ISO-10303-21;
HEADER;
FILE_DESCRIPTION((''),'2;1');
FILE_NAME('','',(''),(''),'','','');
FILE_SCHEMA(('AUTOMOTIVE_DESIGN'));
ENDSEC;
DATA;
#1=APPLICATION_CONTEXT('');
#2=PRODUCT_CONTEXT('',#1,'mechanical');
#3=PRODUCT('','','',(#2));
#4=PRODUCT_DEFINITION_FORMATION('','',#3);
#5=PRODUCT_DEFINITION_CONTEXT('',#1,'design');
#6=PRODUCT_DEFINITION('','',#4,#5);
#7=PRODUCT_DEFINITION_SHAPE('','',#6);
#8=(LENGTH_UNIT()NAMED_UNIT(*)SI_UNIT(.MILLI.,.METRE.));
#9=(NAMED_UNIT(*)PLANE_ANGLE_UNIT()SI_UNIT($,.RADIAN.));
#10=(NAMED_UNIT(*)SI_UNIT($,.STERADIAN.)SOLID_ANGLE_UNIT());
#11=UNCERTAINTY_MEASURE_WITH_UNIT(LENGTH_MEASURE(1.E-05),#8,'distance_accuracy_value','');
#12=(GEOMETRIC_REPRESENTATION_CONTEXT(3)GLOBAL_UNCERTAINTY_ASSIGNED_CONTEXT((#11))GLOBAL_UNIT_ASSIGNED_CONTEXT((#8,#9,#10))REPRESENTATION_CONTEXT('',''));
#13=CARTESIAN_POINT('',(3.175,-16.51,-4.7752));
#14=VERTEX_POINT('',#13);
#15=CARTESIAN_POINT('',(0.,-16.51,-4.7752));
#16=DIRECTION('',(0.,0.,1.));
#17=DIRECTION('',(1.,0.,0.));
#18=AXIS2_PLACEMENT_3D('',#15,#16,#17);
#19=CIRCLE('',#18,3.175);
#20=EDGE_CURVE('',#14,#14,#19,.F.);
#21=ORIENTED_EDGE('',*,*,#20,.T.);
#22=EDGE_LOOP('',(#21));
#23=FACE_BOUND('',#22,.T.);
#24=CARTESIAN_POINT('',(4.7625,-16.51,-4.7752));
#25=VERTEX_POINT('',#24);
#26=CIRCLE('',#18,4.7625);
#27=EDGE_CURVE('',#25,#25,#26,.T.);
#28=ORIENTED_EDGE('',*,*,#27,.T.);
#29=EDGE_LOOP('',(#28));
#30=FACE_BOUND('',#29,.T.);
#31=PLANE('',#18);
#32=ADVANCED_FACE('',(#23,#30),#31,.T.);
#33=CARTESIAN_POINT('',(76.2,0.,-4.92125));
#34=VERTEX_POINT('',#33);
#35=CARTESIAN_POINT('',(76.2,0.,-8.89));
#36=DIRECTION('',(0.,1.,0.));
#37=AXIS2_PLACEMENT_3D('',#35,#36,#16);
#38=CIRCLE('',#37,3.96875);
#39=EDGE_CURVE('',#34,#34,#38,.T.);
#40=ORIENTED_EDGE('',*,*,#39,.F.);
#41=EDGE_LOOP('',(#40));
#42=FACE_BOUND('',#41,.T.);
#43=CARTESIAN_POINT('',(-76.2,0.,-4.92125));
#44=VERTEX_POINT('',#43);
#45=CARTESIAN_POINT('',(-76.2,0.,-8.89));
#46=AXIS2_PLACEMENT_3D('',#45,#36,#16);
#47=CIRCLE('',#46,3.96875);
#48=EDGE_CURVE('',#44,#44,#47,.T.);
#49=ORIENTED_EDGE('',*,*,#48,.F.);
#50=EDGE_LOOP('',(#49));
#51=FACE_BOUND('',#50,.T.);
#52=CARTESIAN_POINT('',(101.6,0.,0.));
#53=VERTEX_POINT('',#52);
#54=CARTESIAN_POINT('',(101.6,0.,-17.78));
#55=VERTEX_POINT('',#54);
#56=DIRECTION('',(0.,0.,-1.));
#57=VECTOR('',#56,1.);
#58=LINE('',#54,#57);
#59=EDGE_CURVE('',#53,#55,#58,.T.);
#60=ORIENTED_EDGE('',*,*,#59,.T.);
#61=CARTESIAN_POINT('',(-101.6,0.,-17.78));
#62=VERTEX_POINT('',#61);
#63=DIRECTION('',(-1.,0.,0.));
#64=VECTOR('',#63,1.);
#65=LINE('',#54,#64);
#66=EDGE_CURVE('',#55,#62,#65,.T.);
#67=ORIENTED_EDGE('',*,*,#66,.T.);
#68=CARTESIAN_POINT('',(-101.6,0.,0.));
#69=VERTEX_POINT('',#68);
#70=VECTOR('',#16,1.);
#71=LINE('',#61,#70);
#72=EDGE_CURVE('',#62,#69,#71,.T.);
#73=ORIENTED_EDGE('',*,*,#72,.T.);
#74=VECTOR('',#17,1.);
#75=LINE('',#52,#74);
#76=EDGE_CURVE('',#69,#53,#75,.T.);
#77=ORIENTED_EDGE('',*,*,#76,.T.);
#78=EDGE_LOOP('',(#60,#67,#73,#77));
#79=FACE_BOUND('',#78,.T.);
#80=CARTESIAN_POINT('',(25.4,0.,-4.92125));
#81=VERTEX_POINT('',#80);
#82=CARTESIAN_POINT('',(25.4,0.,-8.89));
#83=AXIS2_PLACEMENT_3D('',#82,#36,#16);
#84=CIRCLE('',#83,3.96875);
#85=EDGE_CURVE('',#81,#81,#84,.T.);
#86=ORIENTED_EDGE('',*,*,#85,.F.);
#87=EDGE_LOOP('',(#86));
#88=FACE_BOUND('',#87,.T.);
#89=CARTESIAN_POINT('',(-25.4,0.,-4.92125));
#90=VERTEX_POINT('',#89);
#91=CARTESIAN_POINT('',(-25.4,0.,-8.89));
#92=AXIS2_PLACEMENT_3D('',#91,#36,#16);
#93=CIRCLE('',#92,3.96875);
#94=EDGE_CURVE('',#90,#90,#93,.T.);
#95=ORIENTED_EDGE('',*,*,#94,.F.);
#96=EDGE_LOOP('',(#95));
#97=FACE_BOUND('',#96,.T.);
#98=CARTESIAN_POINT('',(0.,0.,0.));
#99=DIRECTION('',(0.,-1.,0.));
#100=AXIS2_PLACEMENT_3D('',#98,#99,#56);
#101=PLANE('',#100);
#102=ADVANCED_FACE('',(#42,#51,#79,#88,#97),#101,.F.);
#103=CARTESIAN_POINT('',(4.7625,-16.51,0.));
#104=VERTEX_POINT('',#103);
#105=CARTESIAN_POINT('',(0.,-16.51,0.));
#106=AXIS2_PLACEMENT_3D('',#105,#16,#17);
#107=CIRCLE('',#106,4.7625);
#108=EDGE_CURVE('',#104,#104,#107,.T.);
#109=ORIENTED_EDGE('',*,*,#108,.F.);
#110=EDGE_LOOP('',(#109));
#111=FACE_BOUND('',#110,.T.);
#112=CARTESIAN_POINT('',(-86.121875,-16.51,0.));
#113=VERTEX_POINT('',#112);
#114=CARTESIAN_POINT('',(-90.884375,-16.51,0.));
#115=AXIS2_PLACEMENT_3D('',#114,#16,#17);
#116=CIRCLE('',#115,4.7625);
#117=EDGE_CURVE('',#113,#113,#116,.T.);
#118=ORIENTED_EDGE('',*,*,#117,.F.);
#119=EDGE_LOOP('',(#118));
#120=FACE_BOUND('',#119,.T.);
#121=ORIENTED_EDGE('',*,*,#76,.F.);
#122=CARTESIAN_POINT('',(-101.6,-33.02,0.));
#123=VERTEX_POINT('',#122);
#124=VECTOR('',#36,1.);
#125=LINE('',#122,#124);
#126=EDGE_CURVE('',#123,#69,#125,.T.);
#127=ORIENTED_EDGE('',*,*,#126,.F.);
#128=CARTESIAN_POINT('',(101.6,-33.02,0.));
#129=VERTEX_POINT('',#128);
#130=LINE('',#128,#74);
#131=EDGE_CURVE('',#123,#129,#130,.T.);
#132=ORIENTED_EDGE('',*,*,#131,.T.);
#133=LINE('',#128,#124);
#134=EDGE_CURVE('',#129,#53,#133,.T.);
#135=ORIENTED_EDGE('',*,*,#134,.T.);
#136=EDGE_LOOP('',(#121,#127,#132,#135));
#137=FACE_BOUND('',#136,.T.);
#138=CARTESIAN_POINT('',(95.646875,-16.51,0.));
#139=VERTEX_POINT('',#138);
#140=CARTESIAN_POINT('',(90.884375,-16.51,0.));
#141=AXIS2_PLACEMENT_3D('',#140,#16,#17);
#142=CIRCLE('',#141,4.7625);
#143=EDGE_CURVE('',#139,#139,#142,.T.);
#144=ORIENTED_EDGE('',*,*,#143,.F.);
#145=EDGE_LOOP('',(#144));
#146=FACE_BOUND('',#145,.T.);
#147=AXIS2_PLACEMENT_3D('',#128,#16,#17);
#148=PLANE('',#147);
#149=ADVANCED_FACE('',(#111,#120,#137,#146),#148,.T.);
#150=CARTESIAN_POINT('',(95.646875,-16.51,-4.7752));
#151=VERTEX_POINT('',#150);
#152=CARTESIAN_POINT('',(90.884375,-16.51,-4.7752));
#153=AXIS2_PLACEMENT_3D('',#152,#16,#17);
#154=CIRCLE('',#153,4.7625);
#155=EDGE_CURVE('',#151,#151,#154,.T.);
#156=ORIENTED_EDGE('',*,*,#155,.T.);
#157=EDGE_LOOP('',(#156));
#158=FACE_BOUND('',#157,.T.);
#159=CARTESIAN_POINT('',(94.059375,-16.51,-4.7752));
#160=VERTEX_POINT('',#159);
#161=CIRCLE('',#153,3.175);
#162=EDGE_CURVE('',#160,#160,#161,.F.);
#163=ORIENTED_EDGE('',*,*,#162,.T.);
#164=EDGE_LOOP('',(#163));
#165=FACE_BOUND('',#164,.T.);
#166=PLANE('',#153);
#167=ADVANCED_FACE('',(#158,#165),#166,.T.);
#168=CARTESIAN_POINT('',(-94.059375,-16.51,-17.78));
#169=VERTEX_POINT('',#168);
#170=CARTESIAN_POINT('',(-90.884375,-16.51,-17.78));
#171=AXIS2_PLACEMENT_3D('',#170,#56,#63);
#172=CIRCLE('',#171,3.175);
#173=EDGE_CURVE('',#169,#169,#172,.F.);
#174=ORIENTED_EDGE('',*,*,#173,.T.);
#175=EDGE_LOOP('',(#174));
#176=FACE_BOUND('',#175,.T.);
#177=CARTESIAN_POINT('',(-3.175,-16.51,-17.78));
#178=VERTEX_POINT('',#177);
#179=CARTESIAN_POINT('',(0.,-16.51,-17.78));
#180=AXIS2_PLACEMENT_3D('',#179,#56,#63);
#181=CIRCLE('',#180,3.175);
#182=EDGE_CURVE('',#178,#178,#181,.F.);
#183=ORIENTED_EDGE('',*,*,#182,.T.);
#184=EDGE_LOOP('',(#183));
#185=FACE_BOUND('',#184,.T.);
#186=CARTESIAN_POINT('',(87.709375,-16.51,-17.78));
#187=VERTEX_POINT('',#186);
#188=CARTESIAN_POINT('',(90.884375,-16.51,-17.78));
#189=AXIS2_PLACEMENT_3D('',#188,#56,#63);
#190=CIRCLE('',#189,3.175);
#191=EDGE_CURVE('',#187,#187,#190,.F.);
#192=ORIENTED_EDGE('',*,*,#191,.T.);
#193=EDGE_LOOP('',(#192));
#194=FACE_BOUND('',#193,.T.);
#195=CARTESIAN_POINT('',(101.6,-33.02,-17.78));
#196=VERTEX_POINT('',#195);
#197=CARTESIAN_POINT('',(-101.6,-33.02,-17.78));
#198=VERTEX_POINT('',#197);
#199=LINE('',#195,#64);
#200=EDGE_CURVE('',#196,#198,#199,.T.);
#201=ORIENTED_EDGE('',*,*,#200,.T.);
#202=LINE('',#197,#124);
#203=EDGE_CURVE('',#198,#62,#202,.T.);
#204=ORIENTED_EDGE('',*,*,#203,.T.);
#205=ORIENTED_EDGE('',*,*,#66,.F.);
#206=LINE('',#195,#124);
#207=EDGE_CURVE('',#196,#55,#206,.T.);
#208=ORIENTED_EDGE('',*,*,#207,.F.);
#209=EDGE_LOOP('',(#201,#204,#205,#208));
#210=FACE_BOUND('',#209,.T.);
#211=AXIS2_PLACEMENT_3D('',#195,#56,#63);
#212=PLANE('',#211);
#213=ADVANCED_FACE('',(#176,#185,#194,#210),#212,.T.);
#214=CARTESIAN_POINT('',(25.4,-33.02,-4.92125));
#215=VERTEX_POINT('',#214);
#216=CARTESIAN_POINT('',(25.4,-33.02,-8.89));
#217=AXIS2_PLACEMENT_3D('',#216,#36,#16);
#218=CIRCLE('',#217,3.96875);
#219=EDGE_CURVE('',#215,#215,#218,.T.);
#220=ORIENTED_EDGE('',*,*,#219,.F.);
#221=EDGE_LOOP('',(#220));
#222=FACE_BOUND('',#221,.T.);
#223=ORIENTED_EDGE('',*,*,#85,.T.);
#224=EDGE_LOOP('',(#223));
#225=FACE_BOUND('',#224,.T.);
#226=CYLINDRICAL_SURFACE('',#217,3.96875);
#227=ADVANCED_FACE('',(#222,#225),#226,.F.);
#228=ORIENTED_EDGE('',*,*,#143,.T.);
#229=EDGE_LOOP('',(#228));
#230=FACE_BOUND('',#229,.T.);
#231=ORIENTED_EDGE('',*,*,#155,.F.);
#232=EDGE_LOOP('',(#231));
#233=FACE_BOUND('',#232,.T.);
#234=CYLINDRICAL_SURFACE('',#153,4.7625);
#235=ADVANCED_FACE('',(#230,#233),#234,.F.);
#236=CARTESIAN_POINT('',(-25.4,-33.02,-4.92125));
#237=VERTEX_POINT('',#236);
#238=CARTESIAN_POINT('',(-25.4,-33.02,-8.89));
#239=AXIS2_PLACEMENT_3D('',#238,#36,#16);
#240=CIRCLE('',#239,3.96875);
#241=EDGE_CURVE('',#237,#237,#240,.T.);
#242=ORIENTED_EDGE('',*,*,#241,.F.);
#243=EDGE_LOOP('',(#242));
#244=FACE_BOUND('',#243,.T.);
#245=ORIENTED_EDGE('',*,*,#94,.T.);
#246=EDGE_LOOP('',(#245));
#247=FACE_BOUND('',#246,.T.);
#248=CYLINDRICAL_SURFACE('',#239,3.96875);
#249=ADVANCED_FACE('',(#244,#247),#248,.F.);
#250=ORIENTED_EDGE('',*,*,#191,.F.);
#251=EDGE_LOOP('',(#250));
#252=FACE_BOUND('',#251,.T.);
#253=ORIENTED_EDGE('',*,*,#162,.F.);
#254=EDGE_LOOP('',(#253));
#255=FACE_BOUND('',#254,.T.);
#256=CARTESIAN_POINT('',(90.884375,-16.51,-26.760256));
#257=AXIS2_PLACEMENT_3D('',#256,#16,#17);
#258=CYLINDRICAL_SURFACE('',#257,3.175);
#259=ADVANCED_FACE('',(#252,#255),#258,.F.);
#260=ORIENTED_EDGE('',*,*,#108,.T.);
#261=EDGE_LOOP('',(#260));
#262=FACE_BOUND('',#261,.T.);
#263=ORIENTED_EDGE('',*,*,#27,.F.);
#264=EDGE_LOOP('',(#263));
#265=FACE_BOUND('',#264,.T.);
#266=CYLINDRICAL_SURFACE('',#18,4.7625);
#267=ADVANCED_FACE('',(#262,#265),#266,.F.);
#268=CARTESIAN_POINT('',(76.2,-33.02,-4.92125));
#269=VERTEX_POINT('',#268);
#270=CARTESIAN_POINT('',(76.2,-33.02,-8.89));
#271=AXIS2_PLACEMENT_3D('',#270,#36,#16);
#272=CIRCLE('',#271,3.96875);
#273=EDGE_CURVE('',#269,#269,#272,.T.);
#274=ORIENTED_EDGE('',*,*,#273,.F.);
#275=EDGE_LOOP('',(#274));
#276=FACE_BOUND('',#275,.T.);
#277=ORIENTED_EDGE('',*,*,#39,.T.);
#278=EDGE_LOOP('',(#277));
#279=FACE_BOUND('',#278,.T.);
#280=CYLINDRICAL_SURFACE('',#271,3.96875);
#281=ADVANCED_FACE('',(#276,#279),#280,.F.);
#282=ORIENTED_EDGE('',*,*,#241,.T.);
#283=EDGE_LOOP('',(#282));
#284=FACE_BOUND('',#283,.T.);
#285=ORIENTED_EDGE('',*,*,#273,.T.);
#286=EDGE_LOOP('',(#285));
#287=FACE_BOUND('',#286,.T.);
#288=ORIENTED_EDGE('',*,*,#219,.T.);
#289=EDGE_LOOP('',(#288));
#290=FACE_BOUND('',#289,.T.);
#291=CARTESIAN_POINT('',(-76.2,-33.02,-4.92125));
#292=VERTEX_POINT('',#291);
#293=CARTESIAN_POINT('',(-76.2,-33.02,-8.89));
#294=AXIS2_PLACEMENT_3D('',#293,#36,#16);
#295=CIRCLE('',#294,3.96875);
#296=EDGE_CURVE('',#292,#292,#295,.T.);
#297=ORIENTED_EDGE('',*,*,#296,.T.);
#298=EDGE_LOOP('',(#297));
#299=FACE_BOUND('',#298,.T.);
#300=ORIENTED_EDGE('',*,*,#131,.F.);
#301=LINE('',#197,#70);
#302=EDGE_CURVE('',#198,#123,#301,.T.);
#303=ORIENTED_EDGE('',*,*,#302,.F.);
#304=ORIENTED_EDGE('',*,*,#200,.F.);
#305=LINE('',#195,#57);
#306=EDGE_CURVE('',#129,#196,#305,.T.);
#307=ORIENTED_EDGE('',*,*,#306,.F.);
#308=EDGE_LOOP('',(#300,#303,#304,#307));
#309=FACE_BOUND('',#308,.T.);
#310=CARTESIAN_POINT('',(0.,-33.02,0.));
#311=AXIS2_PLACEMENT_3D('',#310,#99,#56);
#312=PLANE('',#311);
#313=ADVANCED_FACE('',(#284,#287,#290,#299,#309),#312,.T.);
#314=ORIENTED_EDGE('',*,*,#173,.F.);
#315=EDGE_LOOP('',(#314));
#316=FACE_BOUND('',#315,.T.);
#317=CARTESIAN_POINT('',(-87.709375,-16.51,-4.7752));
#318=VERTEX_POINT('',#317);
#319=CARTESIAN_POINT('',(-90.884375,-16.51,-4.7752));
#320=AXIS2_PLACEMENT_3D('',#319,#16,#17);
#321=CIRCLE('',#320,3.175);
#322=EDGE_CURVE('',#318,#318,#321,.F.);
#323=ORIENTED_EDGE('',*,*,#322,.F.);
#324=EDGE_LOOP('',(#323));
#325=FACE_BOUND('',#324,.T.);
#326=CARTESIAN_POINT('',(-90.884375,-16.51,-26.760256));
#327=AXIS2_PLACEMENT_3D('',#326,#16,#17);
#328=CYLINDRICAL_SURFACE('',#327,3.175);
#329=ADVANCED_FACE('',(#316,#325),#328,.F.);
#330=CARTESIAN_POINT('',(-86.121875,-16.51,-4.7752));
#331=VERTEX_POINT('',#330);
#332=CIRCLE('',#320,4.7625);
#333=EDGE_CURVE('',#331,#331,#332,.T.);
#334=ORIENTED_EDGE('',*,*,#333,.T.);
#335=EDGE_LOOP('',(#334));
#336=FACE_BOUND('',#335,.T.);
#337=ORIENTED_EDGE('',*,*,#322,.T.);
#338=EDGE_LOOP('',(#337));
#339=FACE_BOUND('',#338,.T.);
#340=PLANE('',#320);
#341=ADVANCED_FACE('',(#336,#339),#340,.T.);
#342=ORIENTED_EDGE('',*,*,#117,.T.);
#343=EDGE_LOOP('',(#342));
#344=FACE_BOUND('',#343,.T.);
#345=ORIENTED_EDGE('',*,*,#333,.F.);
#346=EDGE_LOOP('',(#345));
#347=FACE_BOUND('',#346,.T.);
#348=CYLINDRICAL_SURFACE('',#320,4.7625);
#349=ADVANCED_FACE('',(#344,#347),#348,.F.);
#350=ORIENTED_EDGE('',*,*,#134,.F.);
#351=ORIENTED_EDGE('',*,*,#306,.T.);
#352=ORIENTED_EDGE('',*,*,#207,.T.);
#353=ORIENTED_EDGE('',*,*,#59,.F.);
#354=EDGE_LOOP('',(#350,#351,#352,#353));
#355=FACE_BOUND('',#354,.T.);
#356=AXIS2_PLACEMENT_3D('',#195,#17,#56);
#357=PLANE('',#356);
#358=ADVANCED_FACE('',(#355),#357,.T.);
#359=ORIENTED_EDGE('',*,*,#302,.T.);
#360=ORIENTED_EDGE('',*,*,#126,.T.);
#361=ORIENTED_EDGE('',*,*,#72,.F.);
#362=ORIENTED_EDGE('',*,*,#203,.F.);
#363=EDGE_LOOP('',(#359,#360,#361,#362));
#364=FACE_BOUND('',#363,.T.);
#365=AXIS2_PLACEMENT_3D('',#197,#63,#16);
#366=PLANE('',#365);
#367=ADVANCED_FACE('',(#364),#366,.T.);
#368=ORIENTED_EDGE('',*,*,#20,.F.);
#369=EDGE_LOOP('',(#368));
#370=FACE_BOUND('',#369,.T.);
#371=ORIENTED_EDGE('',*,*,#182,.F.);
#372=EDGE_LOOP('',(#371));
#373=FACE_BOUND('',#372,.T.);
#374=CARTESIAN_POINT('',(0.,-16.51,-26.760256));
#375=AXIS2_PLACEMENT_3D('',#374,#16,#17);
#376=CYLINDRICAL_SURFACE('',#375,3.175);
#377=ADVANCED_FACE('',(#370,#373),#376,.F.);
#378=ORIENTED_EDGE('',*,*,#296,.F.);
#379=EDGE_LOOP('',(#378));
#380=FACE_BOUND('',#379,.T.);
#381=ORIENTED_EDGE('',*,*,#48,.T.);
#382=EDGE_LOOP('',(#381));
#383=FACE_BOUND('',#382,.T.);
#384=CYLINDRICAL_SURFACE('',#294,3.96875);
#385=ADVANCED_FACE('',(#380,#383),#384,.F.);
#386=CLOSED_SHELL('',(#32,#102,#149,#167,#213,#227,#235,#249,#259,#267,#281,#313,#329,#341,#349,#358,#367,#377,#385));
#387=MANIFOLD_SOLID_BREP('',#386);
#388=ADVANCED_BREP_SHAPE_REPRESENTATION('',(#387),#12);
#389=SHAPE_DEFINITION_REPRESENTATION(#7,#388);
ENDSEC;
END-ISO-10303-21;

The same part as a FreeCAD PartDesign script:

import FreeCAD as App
import Part
import Sketcher
from FreeCAD import Vector
Q = App.Units.Quantity


def add_polygon(sketch, points):
    """Adds a closed chain of lines whose ends are joined by coincident constraints."""
    first, n = sketch.GeometryCount, len(points)
    for a, b in zip(points, points[1:] + points[:1]):
        sketch.addGeometry(Part.LineSegment(App.Vector(*a, 0), App.Vector(*b, 0)), False)
    for i in range(n):
        sketch.addConstraint(Sketcher.Constraint("Coincident", first + i, 2, first + (i + 1) % n, 1))

doc = App.newDocument("Part")
body = doc.addObject("PartDesign::Body", "Body")

# Sketch on XZ plane
sketch1 = body.newObject("Sketcher::SketchObject", "Sketch")
sketch1.AttachmentSupport = (doc.getObject("XZ_Plane"), [""])
sketch1.MapMode = "FlatFace"
add_polygon(sketch1, [(-101.6, -17.78), (-101.6, 0), (101.6, 0), (101.6, -17.78)])  # lines 0-3
sketch1.addGeometry(Part.Circle(Vector(-76.2, -8.89, 0), Vector(0, 0, 1), 3.96875), False)  # 4
sketch1.addGeometry(Part.Circle(Vector(-25.4, -8.89, 0), Vector(0, 0, 1), 3.96875), False)  # 5
sketch1.addGeometry(Part.Circle(Vector(25.4, -8.89, 0), Vector(0, 0, 1), 3.96875), False)  # 6
sketch1.addGeometry(Part.Circle(Vector(76.2, -8.89, 0), Vector(0, 0, 1), 3.96875), False)  # 7
sketch1.addConstraint(Sketcher.Constraint("Vertical", 0))
sketch1.addConstraint(Sketcher.Constraint("Horizontal", 1))
sketch1.addConstraint(Sketcher.Constraint("Vertical", 2))
sketch1.addConstraint(Sketcher.Constraint("Horizontal", 3))
sketch1.addConstraint(Sketcher.Constraint("Equal", 4, 5))
sketch1.addConstraint(Sketcher.Constraint("Equal", 5, 6))
sketch1.addConstraint(Sketcher.Constraint("Equal", 6, 7))
sketch1.addConstraint(Sketcher.Constraint("Symmetric", 0, 2, 1, 2, -1, 1))
sketch1.addConstraint(Sketcher.Constraint("Symmetric", 5, 3, 6, 3, -2))
sketch1.addConstraint(Sketcher.Constraint("Symmetric", 4, 3, 7, 3, -2))
sketch1.addConstraint(Sketcher.Constraint("Horizontal", 4, 3, 5, 3))
sketch1.addConstraint(Sketcher.Constraint("DistanceX", 1, 1, 1, 2, Q("8 in")))
sketch1.addConstraint(Sketcher.Constraint("Diameter", 4, Q("0.3125 in")))
sketch1.addConstraint(Sketcher.Constraint("DistanceY", 0, 1, 0, 2, Q("0.7 in")))
sketch1.addConstraint(Sketcher.Constraint("DistanceX", 4, 3, -1, 1, Q("3 in")))
sketch1.addConstraint(Sketcher.Constraint("DistanceX", 5, 3, -1, 1, Q("1 in")))
sketch1.addConstraint(Sketcher.Constraint("DistanceY", 4, 3, -1, 1, Q("0.35 in")))
pad1 = body.newObject("PartDesign::Pad", "Pad")
pad1.Profile = sketch1
pad1.Length = Q("1.3 in")

# Sketch on XY plane
sketch2 = body.newObject("Sketcher::SketchObject", "Sketch001")
sketch2.AttachmentSupport = (doc.getObject("XY_Plane"), [""])
sketch2.MapMode = "FlatFace"
sketch2.addGeometry(Part.Circle(Vector(90.884375, -16.51, 0), Vector(0, 0, 1), 3.175), False)
sketch2.addGeometry(Part.Circle(Vector(0, -16.51, 0), Vector(0, 0, 1), 3.175), False)
sketch2.addGeometry(Part.Circle(Vector(-90.884375, -16.51, 0), Vector(0, 0, 1), 3.175), False)
sketch2.addConstraint(Sketcher.Constraint("Equal", 0, 1))
sketch2.addConstraint(Sketcher.Constraint("Equal", 1, 2))
sketch2.addConstraint(Sketcher.Constraint("Symmetric", 0, 3, 2, 3, -2))
sketch2.addConstraint(Sketcher.Constraint("PointOnObject", 1, 3, -2))
sketch2.addConstraint(Sketcher.Constraint("Horizontal", 0, 3, 1, 3))
sketch2.addConstraint(Sketcher.Constraint("Diameter", 0, Q("0.25 in")))
sketch2.addConstraint(Sketcher.Constraint("DistanceY", 0, 3, -1, 1, Q("0.65 in")))
sketch2.addConstraint(Sketcher.Constraint("DistanceX", -1, 1, 0, 3, Q("3.578125 in")))
pocket1 = body.newObject("PartDesign::Pocket", "Pocket")
pocket1.Profile = sketch2
pocket1.Length = Q("0.7 in")

# Sketch on XY plane
sketch3 = body.newObject("Sketcher::SketchObject", "Sketch002")
sketch3.AttachmentSupport = (doc.getObject("XY_Plane"), [""])
sketch3.MapMode = "FlatFace"
sketch3.addGeometry(Part.Circle(Vector(90.884375, -16.51, 0), Vector(0, 0, 1), 4.7625), False)
sketch3.addGeometry(Part.Circle(Vector(0, -16.51, 0), Vector(0, 0, 1), 4.7625), False)
sketch3.addGeometry(Part.Circle(Vector(-90.884375, -16.51, 0), Vector(0, 0, 1), 4.7625), False)
sketch3.addConstraint(Sketcher.Constraint("Equal", 0, 1))
sketch3.addConstraint(Sketcher.Constraint("Equal", 1, 2))
sketch3.addConstraint(Sketcher.Constraint("Symmetric", 0, 3, 2, 3, -2))
sketch3.addConstraint(Sketcher.Constraint("PointOnObject", 1, 3, -2))
sketch3.addConstraint(Sketcher.Constraint("Horizontal", 0, 3, 1, 3))
sketch3.addConstraint(Sketcher.Constraint("Diameter", 0, Q("0.375 in")))
sketch3.addConstraint(Sketcher.Constraint("DistanceY", 0, 3, -1, 1, Q("0.65 in")))
sketch3.addConstraint(Sketcher.Constraint("DistanceX", -1, 1, 0, 3, Q("3.578125 in")))
pocket2 = body.newObject("PartDesign::Pocket", "Pocket001")
pocket2.Profile = sketch3
pocket2.Length = Q("0.188 in")

doc.recompute()
